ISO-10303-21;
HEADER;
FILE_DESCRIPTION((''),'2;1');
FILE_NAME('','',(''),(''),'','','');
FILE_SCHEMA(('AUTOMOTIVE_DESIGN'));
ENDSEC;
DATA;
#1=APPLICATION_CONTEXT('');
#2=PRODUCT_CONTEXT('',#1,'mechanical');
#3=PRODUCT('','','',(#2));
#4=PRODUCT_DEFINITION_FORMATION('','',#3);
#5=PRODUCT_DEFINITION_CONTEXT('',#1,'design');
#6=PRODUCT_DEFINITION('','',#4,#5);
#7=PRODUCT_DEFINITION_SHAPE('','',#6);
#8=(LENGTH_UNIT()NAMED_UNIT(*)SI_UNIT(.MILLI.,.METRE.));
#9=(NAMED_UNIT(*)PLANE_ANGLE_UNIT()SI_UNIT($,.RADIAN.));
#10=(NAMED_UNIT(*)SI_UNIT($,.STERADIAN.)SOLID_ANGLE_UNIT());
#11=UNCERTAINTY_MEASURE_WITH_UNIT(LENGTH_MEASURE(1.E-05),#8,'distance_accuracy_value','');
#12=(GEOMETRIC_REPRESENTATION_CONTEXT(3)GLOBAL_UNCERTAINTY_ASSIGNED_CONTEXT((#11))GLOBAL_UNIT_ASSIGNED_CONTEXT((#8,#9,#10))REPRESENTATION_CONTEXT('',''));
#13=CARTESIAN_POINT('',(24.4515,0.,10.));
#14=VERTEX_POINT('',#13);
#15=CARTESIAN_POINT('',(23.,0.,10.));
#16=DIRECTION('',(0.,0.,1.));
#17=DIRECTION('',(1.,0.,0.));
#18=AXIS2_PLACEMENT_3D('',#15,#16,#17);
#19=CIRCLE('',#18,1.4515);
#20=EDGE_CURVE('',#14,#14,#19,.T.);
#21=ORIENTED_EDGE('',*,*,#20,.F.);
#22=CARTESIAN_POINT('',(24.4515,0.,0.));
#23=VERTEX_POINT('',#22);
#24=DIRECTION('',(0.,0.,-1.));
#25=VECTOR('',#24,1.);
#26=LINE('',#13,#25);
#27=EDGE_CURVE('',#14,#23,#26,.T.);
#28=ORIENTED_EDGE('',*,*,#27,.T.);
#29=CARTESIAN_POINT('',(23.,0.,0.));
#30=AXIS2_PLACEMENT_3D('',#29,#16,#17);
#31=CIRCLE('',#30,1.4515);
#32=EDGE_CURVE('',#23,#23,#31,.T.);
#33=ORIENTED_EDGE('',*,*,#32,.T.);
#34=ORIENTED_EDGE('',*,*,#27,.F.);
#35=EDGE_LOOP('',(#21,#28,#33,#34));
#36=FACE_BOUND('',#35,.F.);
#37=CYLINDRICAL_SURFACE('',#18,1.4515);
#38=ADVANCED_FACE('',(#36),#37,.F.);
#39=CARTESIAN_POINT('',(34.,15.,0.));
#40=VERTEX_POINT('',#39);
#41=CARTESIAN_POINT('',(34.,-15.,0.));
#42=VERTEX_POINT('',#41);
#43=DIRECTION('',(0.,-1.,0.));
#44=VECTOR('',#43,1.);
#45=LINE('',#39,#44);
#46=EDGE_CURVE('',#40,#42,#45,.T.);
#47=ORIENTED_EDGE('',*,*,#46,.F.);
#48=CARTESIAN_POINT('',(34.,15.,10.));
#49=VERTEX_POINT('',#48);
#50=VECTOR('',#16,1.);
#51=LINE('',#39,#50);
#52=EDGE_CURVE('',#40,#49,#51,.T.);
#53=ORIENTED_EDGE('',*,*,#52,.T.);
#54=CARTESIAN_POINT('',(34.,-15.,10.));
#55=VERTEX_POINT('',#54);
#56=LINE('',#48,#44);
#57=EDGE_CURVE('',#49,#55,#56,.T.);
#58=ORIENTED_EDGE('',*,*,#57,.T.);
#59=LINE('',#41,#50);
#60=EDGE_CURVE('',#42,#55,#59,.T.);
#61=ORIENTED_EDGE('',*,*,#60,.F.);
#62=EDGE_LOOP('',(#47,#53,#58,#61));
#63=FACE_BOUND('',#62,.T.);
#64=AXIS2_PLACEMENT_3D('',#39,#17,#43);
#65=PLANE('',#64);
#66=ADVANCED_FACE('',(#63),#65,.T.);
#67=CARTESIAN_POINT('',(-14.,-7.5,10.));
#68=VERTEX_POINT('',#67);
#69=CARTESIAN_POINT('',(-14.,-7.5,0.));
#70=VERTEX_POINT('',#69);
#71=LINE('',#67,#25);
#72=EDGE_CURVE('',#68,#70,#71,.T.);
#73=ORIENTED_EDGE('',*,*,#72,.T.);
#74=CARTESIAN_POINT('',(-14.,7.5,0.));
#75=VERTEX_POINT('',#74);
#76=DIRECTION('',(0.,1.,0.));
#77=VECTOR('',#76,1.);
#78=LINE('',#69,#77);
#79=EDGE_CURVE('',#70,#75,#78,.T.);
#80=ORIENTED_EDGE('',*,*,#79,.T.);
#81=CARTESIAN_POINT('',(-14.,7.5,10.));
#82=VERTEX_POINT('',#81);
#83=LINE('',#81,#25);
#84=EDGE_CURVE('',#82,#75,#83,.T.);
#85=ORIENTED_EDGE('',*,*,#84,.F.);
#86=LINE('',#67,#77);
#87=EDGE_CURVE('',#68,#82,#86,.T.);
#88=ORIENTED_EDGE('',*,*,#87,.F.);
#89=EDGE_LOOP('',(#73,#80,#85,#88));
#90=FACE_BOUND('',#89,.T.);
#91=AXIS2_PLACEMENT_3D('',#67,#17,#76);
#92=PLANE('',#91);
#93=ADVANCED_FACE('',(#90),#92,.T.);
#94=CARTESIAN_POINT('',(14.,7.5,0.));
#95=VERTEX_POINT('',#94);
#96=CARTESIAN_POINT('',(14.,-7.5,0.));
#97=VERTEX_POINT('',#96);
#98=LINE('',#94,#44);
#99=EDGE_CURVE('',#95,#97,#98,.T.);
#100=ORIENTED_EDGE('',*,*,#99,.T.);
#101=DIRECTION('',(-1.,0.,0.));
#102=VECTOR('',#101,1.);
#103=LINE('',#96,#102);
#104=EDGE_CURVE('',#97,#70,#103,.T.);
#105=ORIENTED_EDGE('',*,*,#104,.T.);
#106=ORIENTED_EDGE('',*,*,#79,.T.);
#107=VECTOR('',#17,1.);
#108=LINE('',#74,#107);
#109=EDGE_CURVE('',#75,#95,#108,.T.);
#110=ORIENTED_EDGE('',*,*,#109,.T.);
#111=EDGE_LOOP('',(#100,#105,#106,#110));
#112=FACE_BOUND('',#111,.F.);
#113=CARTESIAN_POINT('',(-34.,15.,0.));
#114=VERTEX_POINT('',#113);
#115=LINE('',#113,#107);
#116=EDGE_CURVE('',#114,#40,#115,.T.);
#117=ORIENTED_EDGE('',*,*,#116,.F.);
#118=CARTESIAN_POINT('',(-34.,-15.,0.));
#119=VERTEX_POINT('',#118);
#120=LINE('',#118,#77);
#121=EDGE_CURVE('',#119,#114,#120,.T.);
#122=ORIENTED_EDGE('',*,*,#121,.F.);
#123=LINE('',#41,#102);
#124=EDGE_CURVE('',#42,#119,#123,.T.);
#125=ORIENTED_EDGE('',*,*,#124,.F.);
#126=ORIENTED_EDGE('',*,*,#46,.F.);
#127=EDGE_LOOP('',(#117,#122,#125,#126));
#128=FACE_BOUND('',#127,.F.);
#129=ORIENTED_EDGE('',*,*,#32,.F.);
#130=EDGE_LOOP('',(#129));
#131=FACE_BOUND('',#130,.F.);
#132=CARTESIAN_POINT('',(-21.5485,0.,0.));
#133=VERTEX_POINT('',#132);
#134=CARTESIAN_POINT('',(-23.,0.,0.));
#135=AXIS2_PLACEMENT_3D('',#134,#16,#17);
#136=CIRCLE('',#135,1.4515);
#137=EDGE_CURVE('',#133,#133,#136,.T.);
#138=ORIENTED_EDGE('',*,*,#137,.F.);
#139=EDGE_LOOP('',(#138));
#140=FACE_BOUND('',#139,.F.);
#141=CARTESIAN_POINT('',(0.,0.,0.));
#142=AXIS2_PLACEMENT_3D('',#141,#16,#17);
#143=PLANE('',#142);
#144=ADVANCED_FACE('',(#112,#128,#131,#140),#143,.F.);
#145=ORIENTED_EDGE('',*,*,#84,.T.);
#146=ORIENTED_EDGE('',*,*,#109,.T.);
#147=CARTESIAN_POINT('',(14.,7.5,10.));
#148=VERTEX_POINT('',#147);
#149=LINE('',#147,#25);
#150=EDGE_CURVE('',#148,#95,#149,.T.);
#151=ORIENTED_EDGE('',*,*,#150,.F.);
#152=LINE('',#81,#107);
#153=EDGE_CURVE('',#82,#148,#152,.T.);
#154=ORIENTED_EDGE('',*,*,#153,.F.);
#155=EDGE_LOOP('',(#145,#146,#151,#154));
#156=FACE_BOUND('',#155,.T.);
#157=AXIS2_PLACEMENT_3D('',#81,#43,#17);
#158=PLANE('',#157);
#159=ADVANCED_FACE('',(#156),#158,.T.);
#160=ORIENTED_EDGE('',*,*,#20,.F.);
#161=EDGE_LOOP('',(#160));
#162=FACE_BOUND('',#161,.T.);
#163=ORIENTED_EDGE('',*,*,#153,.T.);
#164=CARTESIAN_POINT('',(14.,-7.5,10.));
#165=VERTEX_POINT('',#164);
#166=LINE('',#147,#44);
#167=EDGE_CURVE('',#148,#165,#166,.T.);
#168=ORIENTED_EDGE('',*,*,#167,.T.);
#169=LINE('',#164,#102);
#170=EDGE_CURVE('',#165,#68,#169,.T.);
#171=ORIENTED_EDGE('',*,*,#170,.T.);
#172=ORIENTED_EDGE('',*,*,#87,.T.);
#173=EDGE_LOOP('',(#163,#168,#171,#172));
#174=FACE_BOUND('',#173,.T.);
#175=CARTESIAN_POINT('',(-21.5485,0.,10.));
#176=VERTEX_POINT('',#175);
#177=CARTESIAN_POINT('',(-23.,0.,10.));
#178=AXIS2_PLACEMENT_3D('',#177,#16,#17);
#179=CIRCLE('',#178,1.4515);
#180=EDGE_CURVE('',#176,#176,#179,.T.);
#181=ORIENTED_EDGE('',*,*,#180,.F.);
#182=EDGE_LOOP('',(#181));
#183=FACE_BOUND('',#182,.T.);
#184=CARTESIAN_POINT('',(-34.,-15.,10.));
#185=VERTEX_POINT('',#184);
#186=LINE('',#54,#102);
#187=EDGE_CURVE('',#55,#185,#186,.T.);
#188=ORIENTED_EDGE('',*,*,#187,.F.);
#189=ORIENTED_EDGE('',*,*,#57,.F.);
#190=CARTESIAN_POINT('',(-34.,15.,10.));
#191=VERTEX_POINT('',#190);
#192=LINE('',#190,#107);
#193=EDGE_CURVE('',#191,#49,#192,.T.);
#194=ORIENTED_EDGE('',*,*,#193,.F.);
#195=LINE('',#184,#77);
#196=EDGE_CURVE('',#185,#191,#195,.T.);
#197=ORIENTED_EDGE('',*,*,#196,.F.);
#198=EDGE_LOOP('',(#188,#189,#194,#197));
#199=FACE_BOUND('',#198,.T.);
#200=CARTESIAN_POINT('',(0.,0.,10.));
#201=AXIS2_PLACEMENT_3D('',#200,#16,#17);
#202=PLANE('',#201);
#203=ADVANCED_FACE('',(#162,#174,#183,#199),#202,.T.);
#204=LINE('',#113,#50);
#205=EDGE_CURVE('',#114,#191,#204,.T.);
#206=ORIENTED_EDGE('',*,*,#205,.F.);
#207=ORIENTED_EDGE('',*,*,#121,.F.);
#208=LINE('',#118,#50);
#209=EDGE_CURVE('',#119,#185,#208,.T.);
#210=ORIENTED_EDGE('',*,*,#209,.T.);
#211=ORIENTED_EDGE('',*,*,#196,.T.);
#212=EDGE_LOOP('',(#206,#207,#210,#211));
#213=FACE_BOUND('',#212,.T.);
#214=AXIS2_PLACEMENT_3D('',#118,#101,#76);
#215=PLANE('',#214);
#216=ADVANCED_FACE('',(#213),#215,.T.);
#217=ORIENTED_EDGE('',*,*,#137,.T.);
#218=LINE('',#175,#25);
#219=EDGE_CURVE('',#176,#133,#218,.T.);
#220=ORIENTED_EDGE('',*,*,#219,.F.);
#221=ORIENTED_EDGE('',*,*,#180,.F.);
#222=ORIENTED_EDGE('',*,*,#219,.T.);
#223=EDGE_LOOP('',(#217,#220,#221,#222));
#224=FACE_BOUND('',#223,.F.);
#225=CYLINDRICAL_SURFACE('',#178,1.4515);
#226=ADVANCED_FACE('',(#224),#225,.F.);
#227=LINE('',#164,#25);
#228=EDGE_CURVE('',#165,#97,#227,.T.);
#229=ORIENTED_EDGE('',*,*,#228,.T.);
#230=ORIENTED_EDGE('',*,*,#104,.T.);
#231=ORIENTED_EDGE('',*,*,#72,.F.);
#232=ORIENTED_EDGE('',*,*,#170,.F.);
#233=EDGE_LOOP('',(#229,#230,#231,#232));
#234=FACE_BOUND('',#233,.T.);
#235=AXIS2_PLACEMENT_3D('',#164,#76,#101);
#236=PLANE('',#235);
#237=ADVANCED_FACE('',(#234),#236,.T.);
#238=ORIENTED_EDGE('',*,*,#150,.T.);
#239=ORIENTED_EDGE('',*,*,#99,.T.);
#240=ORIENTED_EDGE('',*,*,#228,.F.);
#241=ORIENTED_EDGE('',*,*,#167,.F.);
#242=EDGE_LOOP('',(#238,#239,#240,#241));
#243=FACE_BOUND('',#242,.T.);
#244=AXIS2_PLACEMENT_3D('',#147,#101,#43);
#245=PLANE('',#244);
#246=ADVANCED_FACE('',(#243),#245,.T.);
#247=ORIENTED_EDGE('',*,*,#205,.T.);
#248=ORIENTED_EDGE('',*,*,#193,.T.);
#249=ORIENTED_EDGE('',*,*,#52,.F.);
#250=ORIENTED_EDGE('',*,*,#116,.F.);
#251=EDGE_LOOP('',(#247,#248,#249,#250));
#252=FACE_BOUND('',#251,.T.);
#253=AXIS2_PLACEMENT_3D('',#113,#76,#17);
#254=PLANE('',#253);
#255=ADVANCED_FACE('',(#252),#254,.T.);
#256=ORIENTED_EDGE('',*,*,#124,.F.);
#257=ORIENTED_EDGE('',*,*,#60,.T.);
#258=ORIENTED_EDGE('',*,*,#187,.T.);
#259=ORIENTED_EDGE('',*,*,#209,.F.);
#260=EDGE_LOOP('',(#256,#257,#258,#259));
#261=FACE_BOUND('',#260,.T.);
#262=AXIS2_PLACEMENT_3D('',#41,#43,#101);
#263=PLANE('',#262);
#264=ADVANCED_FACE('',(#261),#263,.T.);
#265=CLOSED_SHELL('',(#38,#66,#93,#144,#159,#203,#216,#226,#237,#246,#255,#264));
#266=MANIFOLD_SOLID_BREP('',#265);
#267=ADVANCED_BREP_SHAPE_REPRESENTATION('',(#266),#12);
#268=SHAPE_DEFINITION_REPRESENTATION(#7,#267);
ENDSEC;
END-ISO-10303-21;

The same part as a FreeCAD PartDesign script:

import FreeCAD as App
import Part
import Sketcher
Q = App.Units.Quantity


def add_polygon(sketch, points):
    """Adds a closed chain of lines whose ends are joined by coincident constraints."""
    first, n = sketch.GeometryCount, len(points)
    for a, b in zip(points, points[1:] + points[:1]):
        sketch.addGeometry(Part.LineSegment(App.Vector(*a, 0), App.Vector(*b, 0)), False)
    for i in range(n):
        sketch.addConstraint(Sketcher.Constraint("Coincident", first + i, 2, first + (i + 1) % n, 1))

doc = App.newDocument("Part")
params = doc.addObject("Spreadsheet::Sheet", "Params")
for row, (alias, value) in enumerate([
    ("sketch1_width", "68 mm"),
    ("sketch1_height", "30 mm"),
    ("pad1_length", "10 mm"),
    ("sketch2_width", "28 mm"),
    ("sketch2_height", "15 mm"),
    ("pocket1_length", "10 mm"),
    ("pocket2_length", "10 mm"),
], start=1):
    params.set(f"A{row}", alias)
    params.set(f"B{row}", "=" + value)
    params.setAlias(f"B{row}", alias)

body = doc.addObject("PartDesign::Body", "Body")

# Sketch on XY plane
sketch1 = body.newObject("Sketcher::SketchObject", "Sketch")
sketch1.AttachmentSupport = (doc.getObject("XY_Plane"), [""])
sketch1.MapMode = "FlatFace"
add_polygon(sketch1, [(34, 15), (-34, 15), (-34, -15), (34, -15)])  # lines 0-3
sketch1.addConstraint(Sketcher.Constraint("Horizontal", 0))
sketch1.addConstraint(Sketcher.Constraint("Vertical", 1))
sketch1.addConstraint(Sketcher.Constraint("Horizontal", 2))
sketch1.addConstraint(Sketcher.Constraint("Vertical", 3))
sketch1.addConstraint(Sketcher.Constraint("Symmetric", 0, 2, 2, 2, -1, 1))
sketch1.addConstraint(Sketcher.Constraint("DistanceX", 0, 2, 0, 1, Q("68 mm")))
sketch1.addConstraint(Sketcher.Constraint("DistanceY", 1, 2, 1, 1, Q("30 mm")))
sketch1.setExpression("Constraints[9]", "Params.sketch1_width")
sketch1.setExpression("Constraints[10]", "Params.sketch1_height")
pad1 = body.newObject("PartDesign::Pad", "Pad")
pad1.Profile = sketch1
pad1.setExpression("Length", "Params.pad1_length")

# Sketch on XY plane
sketch2 = body.newObject("Sketcher::SketchObject", "Sketch001")
sketch2.AttachmentSupport = (doc.getObject("XY_Plane"), [""])
sketch2.MapMode = "FlatFace"
sketch2.AttachmentOffset = App.Placement(App.Vector(0, 0, 10), App.Rotation())
add_polygon(sketch2, [(14, 8), (-14, 8), (-14, -8), (14, -8)])  # lines 0-3
sketch2.addConstraint(Sketcher.Constraint("Horizontal", 0))
sketch2.addConstraint(Sketcher.Constraint("Vertical", 1))
sketch2.addConstraint(Sketcher.Constraint("Horizontal", 2))
sketch2.addConstraint(Sketcher.Constraint("Vertical", 3))
sketch2.addConstraint(Sketcher.Constraint("Symmetric", 0, 2, 2, 2, -1, 1))
sketch2.addConstraint(Sketcher.Constraint("DistanceX", 0, 2, 0, 1, Q("28 mm")))
sketch2.addConstraint(Sketcher.Constraint("DistanceY", 1, 2, 1, 1, Q("15 mm")))
sketch2.setExpression("Constraints[9]", "Params.sketch2_width")
sketch2.setExpression("Constraints[10]", "Params.sketch2_height")
pocket1 = body.newObject("PartDesign::Pocket", "Pocket")
pocket1.Profile = sketch2
pocket1.setExpression("Length", "Params.pocket1_length")

# Sketch on XY plane
sketch3 = body.newObject("Sketcher::SketchObject", "Sketch002")
sketch3.AttachmentSupport = (doc.getObject("XY_Plane"), [""])
sketch3.MapMode = "FlatFace"
sketch3.AttachmentOffset = App.Placement(App.Vector(0, 0, 10), App.Rotation())
sketch3.addGeometry(Part.Circle(App.Vector(-23, 0, 0), App.Vector(0, 0, 1), 1.5), False)
sketch3.addGeometry(Part.Circle(App.Vector(23, 0, 0), App.Vector(0, 0, 1), 1.5), False)
sketch3.addConstraint(Sketcher.Constraint("Equal", 0, 1))
sketch3.addConstraint(Sketcher.Constraint("Symmetric", 0, 3, 1, 3, -1, 1))
sketch3.addConstraint(Sketcher.Constraint("PointOnObject", 0, 3, -1))
sketch3.addConstraint(Sketcher.Constraint("Diameter", 0, Q("2.903 mm")))
sketch3.addConstraint(Sketcher.Constraint("DistanceX", 0, 3, -1, 1, Q("23 mm")))
pocket2 = body.newObject("PartDesign::Pocket", "Pocket001")
pocket2.Profile = sketch3
pocket2.setExpression("Length", "Params.pocket2_length")

doc.recompute()
